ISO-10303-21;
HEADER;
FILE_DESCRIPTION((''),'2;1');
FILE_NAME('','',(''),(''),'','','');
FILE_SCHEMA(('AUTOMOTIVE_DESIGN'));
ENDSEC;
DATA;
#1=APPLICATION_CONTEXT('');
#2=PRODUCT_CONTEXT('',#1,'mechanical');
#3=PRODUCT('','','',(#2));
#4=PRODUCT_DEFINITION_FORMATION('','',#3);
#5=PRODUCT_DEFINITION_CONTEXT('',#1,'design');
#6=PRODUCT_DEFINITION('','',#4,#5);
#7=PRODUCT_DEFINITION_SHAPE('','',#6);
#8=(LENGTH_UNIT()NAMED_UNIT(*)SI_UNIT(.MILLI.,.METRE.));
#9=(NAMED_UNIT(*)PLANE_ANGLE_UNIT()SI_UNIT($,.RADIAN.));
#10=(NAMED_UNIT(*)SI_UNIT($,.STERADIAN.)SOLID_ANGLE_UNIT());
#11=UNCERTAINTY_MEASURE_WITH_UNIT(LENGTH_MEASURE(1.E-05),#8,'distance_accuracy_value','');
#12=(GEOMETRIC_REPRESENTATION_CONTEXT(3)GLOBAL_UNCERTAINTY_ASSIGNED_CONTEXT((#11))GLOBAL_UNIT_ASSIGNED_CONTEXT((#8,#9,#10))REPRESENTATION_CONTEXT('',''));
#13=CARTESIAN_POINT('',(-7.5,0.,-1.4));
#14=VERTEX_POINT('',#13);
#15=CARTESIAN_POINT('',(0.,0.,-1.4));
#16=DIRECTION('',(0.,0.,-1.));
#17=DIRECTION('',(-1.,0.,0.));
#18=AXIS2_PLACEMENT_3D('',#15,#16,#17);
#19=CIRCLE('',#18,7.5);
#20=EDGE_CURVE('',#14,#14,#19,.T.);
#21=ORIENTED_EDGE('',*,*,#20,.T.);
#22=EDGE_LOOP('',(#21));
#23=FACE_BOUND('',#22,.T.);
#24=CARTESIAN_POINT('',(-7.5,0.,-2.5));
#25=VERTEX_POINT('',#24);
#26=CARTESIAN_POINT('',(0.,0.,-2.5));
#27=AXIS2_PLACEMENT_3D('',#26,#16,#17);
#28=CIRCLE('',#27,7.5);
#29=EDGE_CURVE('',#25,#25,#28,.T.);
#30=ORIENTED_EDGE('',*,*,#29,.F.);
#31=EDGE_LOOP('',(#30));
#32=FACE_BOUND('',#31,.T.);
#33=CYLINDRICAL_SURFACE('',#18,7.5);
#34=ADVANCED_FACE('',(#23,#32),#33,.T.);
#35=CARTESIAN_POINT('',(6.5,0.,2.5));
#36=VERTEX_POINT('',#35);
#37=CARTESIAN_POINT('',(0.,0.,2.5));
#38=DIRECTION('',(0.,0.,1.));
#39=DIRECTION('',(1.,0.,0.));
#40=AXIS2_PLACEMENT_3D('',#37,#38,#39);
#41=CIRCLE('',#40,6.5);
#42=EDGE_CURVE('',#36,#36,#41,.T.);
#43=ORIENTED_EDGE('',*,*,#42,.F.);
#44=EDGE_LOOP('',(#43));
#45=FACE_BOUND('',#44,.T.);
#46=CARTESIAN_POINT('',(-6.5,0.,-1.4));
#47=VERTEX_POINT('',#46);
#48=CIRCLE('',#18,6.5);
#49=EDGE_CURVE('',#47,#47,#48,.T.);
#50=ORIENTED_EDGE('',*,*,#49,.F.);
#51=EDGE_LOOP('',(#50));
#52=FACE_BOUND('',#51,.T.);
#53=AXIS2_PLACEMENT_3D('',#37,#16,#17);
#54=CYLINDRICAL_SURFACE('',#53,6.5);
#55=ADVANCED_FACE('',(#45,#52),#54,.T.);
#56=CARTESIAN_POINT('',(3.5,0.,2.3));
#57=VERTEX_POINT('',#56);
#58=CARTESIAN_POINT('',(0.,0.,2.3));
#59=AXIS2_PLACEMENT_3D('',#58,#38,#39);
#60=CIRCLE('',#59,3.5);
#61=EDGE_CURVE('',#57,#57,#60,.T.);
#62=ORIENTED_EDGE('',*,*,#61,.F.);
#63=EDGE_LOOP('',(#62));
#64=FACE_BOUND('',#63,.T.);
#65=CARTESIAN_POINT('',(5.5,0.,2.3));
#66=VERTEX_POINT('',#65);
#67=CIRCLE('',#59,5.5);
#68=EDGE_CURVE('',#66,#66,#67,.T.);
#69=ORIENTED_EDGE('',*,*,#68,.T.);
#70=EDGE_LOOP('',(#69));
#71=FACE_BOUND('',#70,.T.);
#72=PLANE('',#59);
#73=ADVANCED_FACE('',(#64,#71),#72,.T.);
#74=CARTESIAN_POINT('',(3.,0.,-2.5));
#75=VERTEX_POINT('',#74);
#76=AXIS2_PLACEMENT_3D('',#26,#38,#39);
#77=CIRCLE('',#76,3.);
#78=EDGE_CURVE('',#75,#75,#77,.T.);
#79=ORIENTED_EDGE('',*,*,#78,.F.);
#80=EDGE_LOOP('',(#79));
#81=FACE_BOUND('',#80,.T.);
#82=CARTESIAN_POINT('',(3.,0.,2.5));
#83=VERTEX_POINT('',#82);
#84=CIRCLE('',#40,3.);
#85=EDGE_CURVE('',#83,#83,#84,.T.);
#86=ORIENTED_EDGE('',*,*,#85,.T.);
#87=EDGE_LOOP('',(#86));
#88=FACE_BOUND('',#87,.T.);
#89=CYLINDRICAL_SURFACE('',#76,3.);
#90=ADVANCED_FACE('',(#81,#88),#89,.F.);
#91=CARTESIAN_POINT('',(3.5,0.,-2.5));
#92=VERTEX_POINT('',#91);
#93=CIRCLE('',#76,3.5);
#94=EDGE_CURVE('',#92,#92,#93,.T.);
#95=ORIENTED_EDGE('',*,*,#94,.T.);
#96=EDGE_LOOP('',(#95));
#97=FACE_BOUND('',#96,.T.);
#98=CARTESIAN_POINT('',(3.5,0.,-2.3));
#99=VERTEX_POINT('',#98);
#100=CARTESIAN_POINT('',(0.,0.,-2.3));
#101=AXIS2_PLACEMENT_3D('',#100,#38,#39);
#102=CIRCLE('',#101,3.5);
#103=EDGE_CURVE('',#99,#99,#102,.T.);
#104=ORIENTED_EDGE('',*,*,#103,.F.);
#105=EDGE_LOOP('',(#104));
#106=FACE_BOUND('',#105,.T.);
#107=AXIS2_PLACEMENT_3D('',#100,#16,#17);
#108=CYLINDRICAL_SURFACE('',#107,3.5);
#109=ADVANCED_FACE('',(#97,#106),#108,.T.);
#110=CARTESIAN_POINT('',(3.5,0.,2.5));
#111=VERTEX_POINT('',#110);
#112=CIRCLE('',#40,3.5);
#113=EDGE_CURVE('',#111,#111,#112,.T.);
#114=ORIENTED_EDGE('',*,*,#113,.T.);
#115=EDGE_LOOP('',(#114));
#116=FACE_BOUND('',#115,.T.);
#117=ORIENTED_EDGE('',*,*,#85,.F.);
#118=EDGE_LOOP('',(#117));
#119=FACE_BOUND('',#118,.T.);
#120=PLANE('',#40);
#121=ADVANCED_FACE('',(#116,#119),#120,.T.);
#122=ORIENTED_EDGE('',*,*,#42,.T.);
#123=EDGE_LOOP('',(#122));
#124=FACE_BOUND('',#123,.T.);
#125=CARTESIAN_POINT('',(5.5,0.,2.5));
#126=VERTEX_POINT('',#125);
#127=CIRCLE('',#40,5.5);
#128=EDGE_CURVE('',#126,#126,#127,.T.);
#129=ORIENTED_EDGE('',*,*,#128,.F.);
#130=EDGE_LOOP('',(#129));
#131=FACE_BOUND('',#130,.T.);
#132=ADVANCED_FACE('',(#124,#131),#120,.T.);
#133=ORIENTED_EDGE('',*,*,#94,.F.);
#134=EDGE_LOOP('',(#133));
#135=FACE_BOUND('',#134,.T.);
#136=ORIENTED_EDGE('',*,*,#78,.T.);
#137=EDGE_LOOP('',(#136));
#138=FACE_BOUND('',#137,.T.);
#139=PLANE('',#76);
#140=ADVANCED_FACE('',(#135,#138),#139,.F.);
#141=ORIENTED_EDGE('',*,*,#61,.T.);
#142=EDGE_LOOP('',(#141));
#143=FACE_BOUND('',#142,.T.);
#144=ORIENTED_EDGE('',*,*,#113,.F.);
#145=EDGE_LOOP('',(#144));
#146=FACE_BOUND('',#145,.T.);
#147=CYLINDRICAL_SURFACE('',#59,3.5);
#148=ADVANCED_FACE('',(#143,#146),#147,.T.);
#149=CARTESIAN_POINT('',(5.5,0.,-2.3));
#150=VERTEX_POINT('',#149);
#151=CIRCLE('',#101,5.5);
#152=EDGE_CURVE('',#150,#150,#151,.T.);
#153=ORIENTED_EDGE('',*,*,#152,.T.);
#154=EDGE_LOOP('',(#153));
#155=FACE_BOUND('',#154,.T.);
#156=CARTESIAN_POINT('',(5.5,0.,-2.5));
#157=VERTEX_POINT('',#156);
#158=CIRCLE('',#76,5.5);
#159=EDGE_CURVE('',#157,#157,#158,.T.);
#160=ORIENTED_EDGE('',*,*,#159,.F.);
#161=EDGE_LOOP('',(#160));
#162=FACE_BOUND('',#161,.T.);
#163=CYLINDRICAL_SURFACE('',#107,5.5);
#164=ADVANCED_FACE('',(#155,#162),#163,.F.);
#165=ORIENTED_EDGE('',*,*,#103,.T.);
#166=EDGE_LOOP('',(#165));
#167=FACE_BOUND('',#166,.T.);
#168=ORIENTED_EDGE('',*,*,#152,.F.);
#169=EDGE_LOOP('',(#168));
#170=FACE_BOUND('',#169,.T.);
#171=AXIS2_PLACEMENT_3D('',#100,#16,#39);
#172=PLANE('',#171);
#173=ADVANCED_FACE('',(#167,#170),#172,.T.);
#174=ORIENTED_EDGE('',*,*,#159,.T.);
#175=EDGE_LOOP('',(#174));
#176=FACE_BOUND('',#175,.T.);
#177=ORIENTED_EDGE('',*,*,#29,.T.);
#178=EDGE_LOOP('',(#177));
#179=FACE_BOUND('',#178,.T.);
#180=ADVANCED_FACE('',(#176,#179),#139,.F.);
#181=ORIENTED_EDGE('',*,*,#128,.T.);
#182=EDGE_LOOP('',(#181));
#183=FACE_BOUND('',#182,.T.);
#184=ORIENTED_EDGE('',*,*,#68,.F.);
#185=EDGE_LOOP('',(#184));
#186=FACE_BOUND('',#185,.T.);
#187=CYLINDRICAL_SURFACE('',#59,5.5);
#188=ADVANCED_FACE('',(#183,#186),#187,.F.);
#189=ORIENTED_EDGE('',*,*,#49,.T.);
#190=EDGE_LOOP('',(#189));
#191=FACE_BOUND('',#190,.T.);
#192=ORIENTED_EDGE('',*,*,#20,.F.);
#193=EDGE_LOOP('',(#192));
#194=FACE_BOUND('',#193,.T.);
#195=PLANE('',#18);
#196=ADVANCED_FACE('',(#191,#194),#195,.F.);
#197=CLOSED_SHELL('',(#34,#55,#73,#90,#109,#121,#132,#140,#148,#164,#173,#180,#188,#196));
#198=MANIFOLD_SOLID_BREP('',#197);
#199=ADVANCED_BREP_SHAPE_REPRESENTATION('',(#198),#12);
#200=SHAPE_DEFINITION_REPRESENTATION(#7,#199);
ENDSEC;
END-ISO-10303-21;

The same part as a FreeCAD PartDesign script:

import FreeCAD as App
import Part
import Sketcher
from FreeCAD import Vector
Q = App.Units.Quantity

doc = App.newDocument("Part")
body = doc.addObject("PartDesign::Body", "Body")

sketch1 = doc.addObject("Sketcher::SketchObject", "Sketch")
body.addObject(sketch1)
sketch1.AttachmentSupport = (doc.XY_Plane, [""])
sketch1.MapMode = "FlatFace"
sketch1.addGeometry(Part.Circle(Vector(0, 0, 0), Vector(0, 0, 1), 6.5), False)
sketch1.addConstraint([
    Sketcher.Constraint("Coincident", 0, 3, -1, 1),
    Sketcher.Constraint("Diameter", 0, Q("13 mm")),
])
pad1 = doc.addObject("PartDesign::Pad", "Pad")
body.addObject(pad1)
pad1.Profile = sketch1
pad1.Length = 5
pad1.Midplane = True

sketch2 = doc.addObject("Sketcher::SketchObject", "Sketch001")
body.addObject(sketch2)
sketch2.AttachmentSupport = (doc.XY_Plane, [""])
sketch2.MapMode = "FlatFace"
sketch2.AttachmentOffset = App.Placement(Vector(0, 0, -2.5), App.Rotation())
sketch2.addGeometry(Part.Circle(Vector(0, 0, 0), Vector(0, 0, 1), 7.5), False)
sketch2.addConstraint([
    Sketcher.Constraint("Coincident", 0, 3, -1, 1),
    Sketcher.Constraint("Diameter", 0, Q("15 mm")),
])
pad2 = doc.addObject("PartDesign::Pad", "Pad001")
body.addObject(pad2)
pad2.Profile = sketch2
pad2.Length = 1.1

sketch3 = doc.addObject("Sketcher::SketchObject", "Sketch002")
body.addObject(sketch3)
sketch3.AttachmentSupport = (doc.XY_Plane, [""])
sketch3.MapMode = "FlatFace"
sketch3.AttachmentOffset = App.Placement(Vector(0, 0, 2.5), App.Rotation())
sketch3.addGeometry(Part.Circle(Vector(0, 0, 0), Vector(0, 0, 1), 3), False)
sketch3.addConstraint([
    Sketcher.Constraint("Coincident", 0, 3, -1, 1),
    Sketcher.Constraint("Diameter", 0, Q("6 mm")),
])
pocket1 = doc.addObject("PartDesign::Pocket", "Pocket")
body.addObject(pocket1)
pocket1.Profile = sketch3
pocket1.Type = "ThroughAll"

sketch4 = doc.addObject("Sketcher::SketchObject", "Sketch003")
body.addObject(sketch4)
sketch4.AttachmentSupport = (doc.XY_Plane, [""])
sketch4.MapMode = "FlatFace"
sketch4.AttachmentOffset = App.Placement(Vector(0, 0, 2.5), App.Rotation())
sketch4.addGeometry([
    Part.Circle(Vector(0, 0, 0), Vector(0, 0, 1), 5.5),
    Part.Circle(Vector(0, 0, 0), Vector(0, 0, 1), 3.5),
], False)
sketch4.addConstraint([
    Sketcher.Constraint("Coincident", 0, 3, -1, 1),
    Sketcher.Constraint("Coincident", 1, 3, -1, 1),
    Sketcher.Constraint("Diameter", 0, Q("11 mm")),
    Sketcher.Constraint("Diameter", 1, Q("7 mm")),
])
pocket2 = doc.addObject("PartDesign::Pocket", "Pocket001")
body.addObject(pocket2)
pocket2.Profile = sketch4
pocket2.Length = 0.2
doc.recompute()

mirrored = doc.addObject("PartDesign::Mirrored", "Mirrored")
body.addObject(mirrored)
mirrored.Originals = [pocket2]
mirrored.MirrorPlane = (doc.XY_Plane, [""])
body.Tip = mirrored

doc.recompute()
